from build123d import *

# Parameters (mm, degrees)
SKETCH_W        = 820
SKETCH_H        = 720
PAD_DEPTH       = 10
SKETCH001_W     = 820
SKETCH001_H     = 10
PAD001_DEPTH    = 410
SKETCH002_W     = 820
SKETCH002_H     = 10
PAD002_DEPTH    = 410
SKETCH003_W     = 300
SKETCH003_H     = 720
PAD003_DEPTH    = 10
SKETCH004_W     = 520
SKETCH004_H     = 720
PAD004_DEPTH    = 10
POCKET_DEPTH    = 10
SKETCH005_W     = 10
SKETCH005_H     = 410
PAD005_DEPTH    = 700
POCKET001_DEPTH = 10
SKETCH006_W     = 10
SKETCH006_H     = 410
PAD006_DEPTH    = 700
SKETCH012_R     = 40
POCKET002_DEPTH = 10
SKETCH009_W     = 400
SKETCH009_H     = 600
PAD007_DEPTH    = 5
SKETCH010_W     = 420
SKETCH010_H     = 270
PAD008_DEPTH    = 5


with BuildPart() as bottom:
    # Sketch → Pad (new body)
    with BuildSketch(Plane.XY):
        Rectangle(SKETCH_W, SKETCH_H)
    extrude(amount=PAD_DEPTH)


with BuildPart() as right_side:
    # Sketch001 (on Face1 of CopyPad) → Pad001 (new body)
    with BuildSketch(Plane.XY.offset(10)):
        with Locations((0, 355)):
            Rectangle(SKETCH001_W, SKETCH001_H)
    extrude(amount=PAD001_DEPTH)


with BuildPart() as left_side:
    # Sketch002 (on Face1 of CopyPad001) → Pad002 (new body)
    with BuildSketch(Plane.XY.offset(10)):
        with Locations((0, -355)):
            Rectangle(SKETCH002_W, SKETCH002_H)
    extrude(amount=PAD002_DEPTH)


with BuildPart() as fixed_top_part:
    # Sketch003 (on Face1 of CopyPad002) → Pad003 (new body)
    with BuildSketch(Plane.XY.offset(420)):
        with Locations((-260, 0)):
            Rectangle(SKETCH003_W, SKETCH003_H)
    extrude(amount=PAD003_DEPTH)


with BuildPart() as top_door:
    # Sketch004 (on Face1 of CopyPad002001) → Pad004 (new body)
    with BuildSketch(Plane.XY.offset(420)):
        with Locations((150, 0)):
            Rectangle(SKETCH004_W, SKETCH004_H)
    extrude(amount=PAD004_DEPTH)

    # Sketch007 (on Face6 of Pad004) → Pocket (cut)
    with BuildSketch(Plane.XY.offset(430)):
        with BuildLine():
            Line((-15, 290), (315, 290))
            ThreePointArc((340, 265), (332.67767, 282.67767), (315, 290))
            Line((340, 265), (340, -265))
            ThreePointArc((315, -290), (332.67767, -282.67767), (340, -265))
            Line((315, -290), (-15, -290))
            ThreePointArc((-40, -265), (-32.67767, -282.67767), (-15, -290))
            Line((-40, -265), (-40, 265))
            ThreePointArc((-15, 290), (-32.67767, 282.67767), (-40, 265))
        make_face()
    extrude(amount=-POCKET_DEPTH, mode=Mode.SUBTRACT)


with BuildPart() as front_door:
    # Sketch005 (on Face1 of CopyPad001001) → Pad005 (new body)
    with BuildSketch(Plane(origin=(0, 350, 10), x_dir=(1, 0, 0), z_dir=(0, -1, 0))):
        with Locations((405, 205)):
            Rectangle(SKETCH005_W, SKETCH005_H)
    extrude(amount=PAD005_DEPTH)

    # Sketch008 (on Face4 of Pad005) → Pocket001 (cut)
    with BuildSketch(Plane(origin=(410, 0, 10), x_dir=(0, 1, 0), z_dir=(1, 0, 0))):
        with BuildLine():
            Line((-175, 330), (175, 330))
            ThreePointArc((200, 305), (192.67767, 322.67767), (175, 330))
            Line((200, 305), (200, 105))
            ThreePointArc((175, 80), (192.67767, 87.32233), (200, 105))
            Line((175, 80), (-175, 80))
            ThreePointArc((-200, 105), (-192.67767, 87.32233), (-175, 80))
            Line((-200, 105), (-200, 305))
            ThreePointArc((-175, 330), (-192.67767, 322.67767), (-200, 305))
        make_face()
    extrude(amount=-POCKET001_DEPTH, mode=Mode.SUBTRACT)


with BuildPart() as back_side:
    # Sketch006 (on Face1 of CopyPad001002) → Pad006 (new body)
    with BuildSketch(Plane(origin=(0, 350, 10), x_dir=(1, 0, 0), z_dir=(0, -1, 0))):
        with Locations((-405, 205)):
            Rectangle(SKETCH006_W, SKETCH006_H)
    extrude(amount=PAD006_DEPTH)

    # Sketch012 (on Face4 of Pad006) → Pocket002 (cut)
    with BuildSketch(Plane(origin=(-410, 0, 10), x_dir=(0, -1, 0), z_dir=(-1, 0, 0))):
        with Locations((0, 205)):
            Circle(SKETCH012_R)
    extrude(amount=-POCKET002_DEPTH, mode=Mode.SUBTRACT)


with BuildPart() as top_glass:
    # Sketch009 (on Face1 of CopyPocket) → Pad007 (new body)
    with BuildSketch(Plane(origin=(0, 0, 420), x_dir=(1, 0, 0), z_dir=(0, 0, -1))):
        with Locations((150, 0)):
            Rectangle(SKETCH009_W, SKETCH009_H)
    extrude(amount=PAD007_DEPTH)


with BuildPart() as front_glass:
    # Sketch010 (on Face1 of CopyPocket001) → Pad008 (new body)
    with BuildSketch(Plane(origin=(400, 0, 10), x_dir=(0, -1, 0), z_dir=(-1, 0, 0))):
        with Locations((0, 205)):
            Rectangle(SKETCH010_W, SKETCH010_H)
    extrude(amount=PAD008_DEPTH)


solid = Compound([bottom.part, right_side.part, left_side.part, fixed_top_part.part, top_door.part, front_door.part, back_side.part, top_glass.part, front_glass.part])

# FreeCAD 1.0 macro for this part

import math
import FreeCAD as App
import Part
import Sketcher

V = App.Vector


def add_polygon(sketch, points):
    """Adds a closed chain of lines whose ends are joined by coincident constraints."""
    first, n = sketch.GeometryCount, len(points)
    for a, b in zip(points, points[1:] + points[:1]):
        sketch.addGeometry(Part.LineSegment(App.Vector(*a, 0), App.Vector(*b, 0)), False)
    for i in range(n):
        sketch.addConstraint(Sketcher.Constraint("Coincident", first + i, 2, first + (i + 1) % n, 1))

doc = App.newDocument("Part")
body = doc.addObject("PartDesign::Body", "Body")

sketch1 = doc.addObject("Sketcher::SketchObject", "Sketch")
body.addObject(sketch1)
sketch1.AttachmentSupport = (doc.XY_Plane, [""])
sketch1.MapMode = "FlatFace"
add_polygon(sketch1, [(-410, 360), (-410, -360), (410, -360), (410, 360)])
sketch1.addConstraint(Sketcher.Constraint("Vertical", 0))
sketch1.addConstraint(Sketcher.Constraint("Horizontal", 1))
sketch1.addConstraint(Sketcher.Constraint("Vertical", 2))
sketch1.addConstraint(Sketcher.Constraint("Horizontal", 3))
sketch1.addConstraint(Sketcher.Constraint("Symmetric", 0, 2, 2, 2, -1, 1))
sketch1.addConstraint(Sketcher.Constraint("DistanceX", 1, 1, 1, 2, 820.0))
sketch1.addConstraint(Sketcher.Constraint("DistanceY", 0, 2, 0, 1, 720.0))
pad1 = doc.addObject("PartDesign::Pad", "Pad")
body.addObject(pad1)
pad1.Profile = sketch1
pad1.Length = 10
body2 = doc.addObject("PartDesign::Body", "Body001")

sketch2 = doc.addObject("Sketcher::SketchObject", "Sketch001")
body2.addObject(sketch2)
sketch2.AttachmentSupport = (doc.getObject("XY_Plane001"), [""])
sketch2.MapMode = "FlatFace"
sketch2.AttachmentOffset = App.Placement(V(0, 0, 10), App.Rotation())
add_polygon(sketch2, [(-410, 360), (-410, 350), (410, 350), (410, 360)])
sketch2.addConstraint(Sketcher.Constraint("Vertical", 0))
sketch2.addConstraint(Sketcher.Constraint("Horizontal", 1))
sketch2.addConstraint(Sketcher.Constraint("Vertical", 2))
sketch2.addConstraint(Sketcher.Constraint("Horizontal", 3))
sketch2.addConstraint(Sketcher.Constraint("DistanceX", 1, 1, 1, 2, 820.0))
sketch2.addConstraint(Sketcher.Constraint("DistanceY", 0, 2, 0, 1, 10.0))
sketch2.addConstraint(Sketcher.Constraint("DistanceX", 0, 2, -1, 1, 410.0))
sketch2.addConstraint(Sketcher.Constraint("DistanceY", -1, 1, 0, 2, 350.0))
pad2 = doc.addObject("PartDesign::Pad", "Pad001")
body2.addObject(pad2)
pad2.Profile = sketch2
pad2.Length = 410
body3 = doc.addObject("PartDesign::Body", "Body002")

sketch3 = doc.addObject("Sketcher::SketchObject", "Sketch002")
body3.addObject(sketch3)
sketch3.AttachmentSupport = (doc.getObject("XY_Plane002"), [""])
sketch3.MapMode = "FlatFace"
sketch3.AttachmentOffset = App.Placement(V(0, 0, 10), App.Rotation())
add_polygon(sketch3, [(-410, -350), (-410, -360), (410, -360), (410, -350)])
sketch3.addConstraint(Sketcher.Constraint("Vertical", 0))
sketch3.addConstraint(Sketcher.Constraint("Horizontal", 1))
sketch3.addConstraint(Sketcher.Constraint("Vertical", 2))
sketch3.addConstraint(Sketcher.Constraint("Horizontal", 3))
sketch3.addConstraint(Sketcher.Constraint("DistanceX", 1, 1, 1, 2, 820.0))
sketch3.addConstraint(Sketcher.Constraint("DistanceY", 0, 2, 0, 1, 10.0))
sketch3.addConstraint(Sketcher.Constraint("DistanceX", 0, 2, -1, 1, 410.0))
sketch3.addConstraint(Sketcher.Constraint("DistanceY", 0, 2, -1, 1, 360.0))
pad3 = doc.addObject("PartDesign::Pad", "Pad002")
body3.addObject(pad3)
pad3.Profile = sketch3
pad3.Length = 410
body4 = doc.addObject("PartDesign::Body", "Body003")

sketch4 = doc.addObject("Sketcher::SketchObject", "Sketch003")
body4.addObject(sketch4)
sketch4.AttachmentSupport = (doc.getObject("XY_Plane003"), [""])
sketch4.MapMode = "FlatFace"
sketch4.AttachmentOffset = App.Placement(V(0, 0, 420), App.Rotation())
add_polygon(sketch4, [(-410, 360), (-410, -360), (-110, -360), (-110, 360)])
sketch4.addConstraint(Sketcher.Constraint("Vertical", 0))
sketch4.addConstraint(Sketcher.Constraint("Horizontal", 1))
sketch4.addConstraint(Sketcher.Constraint("Vertical", 2))
sketch4.addConstraint(Sketcher.Constraint("Horizontal", 3))
sketch4.addConstraint(Sketcher.Constraint("DistanceX", 1, 1, 1, 2, 300.0))
sketch4.addConstraint(Sketcher.Constraint("DistanceY", 0, 2, 0, 1, 720.0))
sketch4.addConstraint(Sketcher.Constraint("DistanceX", 0, 2, -1, 1, 410.0))
sketch4.addConstraint(Sketcher.Constraint("DistanceY", 0, 2, -1, 1, 360.0))
pad4 = doc.addObject("PartDesign::Pad", "Pad003")
body4.addObject(pad4)
pad4.Profile = sketch4
pad4.Length = 10
body5 = doc.addObject("PartDesign::Body", "Body004")

sketch5 = doc.addObject("Sketcher::SketchObject", "Sketch004")
body5.addObject(sketch5)
sketch5.AttachmentSupport = (doc.getObject("XY_Plane004"), [""])
sketch5.MapMode = "FlatFace"
sketch5.AttachmentOffset = App.Placement(V(0, 0, 420), App.Rotation())
add_polygon(sketch5, [(-110, 360), (-110, -360), (410, -360), (410, 360)])
sketch5.addConstraint(Sketcher.Constraint("Vertical", 0))
sketch5.addConstraint(Sketcher.Constraint("Horizontal", 1))
sketch5.addConstraint(Sketcher.Constraint("Vertical", 2))
sketch5.addConstraint(Sketcher.Constraint("Horizontal", 3))
sketch5.addConstraint(Sketcher.Constraint("DistanceX", 1, 1, 1, 2, 520.0))
sketch5.addConstraint(Sketcher.Constraint("DistanceY", 0, 2, 0, 1, 720.0))
sketch5.addConstraint(Sketcher.Constraint("DistanceX", 0, 2, -1, 1, 110.0))
sketch5.addConstraint(Sketcher.Constraint("DistanceY", 0, 2, -1, 1, 360.0))
pad5 = doc.addObject("PartDesign::Pad", "Pad004")
body5.addObject(pad5)
pad5.Profile = sketch5
pad5.Length = 10

sketch6 = doc.addObject("Sketcher::SketchObject", "Sketch005")
body5.addObject(sketch6)
sketch6.AttachmentSupport = (doc.getObject("XY_Plane004"), [""])
sketch6.MapMode = "FlatFace"
sketch6.AttachmentOffset = App.Placement(V(0, 0, 430), App.Rotation())
sketch6.addGeometry(Part.LineSegment(V(315, 290, 0), V(-15, 290, 0)), False)
sketch6.addGeometry(Part.ArcOfCircle(Part.Circle(V(-15, 265, 0), V(0, 0, 1), 25), math.radians(90), math.radians(180)), False)
sketch6.addGeometry(Part.LineSegment(V(-40, 265, 0), V(-40, -265, 0)), False)
sketch6.addGeometry(Part.ArcOfCircle(Part.Circle(V(-15, -265, 0), V(0, 0, 1), 25), math.radians(180), math.radians(270)), False)
sketch6.addGeometry(Part.LineSegment(V(-15, -290, 0), V(315, -290, 0)), False)
sketch6.addGeometry(Part.ArcOfCircle(Part.Circle(V(315, -265, 0), V(0, 0, 1), 25), math.radians(-90), math.radians(0)), False)
sketch6.addGeometry(Part.LineSegment(V(340, -265, 0), V(340, 265, 0)), False)
sketch6.addGeometry(Part.ArcOfCircle(Part.Circle(V(315, 265, 0), V(0, 0, 1), 25), math.radians(0), math.radians(90)), False)
sketch6.addConstraint(Sketcher.Constraint("Tangent", 0, 2, 1, 1))
sketch6.addConstraint(Sketcher.Constraint("Tangent", 1, 2, 2, 1))
sketch6.addConstraint(Sketcher.Constraint("Tangent", 2, 2, 3, 1))
sketch6.addConstraint(Sketcher.Constraint("Tangent", 3, 2, 4, 1))
sketch6.addConstraint(Sketcher.Constraint("Tangent", 4, 2, 5, 1))
sketch6.addConstraint(Sketcher.Constraint("Tangent", 5, 2, 6, 1))
sketch6.addConstraint(Sketcher.Constraint("Tangent", 6, 2, 7, 1))
sketch6.addConstraint(Sketcher.Constraint("Tangent", 7, 2, 0, 1))
sketch6.addConstraint(Sketcher.Constraint("Horizontal", 0))
sketch6.addConstraint(Sketcher.Constraint("Vertical", 2))
sketch6.addConstraint(Sketcher.Constraint("Horizontal", 4))
sketch6.addConstraint(Sketcher.Constraint("Vertical", 6))
sketch6.addConstraint(Sketcher.Constraint("Equal", 1, 3))
sketch6.addConstraint(Sketcher.Constraint("Equal", 3, 5))
sketch6.addConstraint(Sketcher.Constraint("Equal", 5, 7))
sketch6.addConstraint(Sketcher.Constraint("Radius", 1, 24.999998))
sketch6.addConstraint(Sketcher.Constraint("DistanceX", 0, 2, 0, 1, 330.0))
sketch6.addConstraint(Sketcher.Constraint("DistanceY", 2, 2, 2, 1, 530.0))
sketch6.addConstraint(Sketcher.Constraint("DistanceX", 1, 3, -1, 1, 15.000002))
sketch6.addConstraint(Sketcher.Constraint("DistanceY", -1, 1, 1, 3, 265.000002))
pocket1 = doc.addObject("PartDesign::Pocket", "Pocket")
body5.addObject(pocket1)
pocket1.Profile = sketch6
pocket1.Length = 10
body6 = doc.addObject("PartDesign::Body", "Body005")

sketch7 = doc.addObject("Sketcher::SketchObject", "Sketch006")
body6.addObject(sketch7)
sketch7.AttachmentSupport = (doc.getObject("XZ_Plane005"), [""])
sketch7.MapMode = "FlatFace"
sketch7.AttachmentOffset = App.Placement(V(0, 0, -350), App.Rotation())
add_polygon(sketch7, [(400, 420), (400, 10), (410, 10), (410, 420)])
sketch7.addConstraint(Sketcher.Constraint("Vertical", 0))
sketch7.addConstraint(Sketcher.Constraint("Horizontal", 1))
sketch7.addConstraint(Sketcher.Constraint("Vertical", 2))
sketch7.addConstraint(Sketcher.Constraint("Horizontal", 3))
sketch7.addConstraint(Sketcher.Constraint("DistanceX", 1, 1, 1, 2, 10.0))
sketch7.addConstraint(Sketcher.Constraint("DistanceY", 0, 2, 0, 1, 410.0))
sketch7.addConstraint(Sketcher.Constraint("DistanceX", -1, 1, 0, 2, 400.0))
sketch7.addConstraint(Sketcher.Constraint("DistanceY", -1, 1, 0, 2, 10.0))
pad6 = doc.addObject("PartDesign::Pad", "Pad005")
body6.addObject(pad6)
pad6.Profile = sketch7
pad6.Length = 700

sketch8 = doc.addObject("Sketcher::SketchObject", "Sketch007")
body6.addObject(sketch8)
sketch8.AttachmentSupport = (doc.getObject("YZ_Plane005"), [""])
sketch8.MapMode = "FlatFace"
sketch8.AttachmentOffset = App.Placement(V(0, 0, 410), App.Rotation())
sketch8.addGeometry(Part.LineSegment(V(175, 340, 0), V(-175, 340, 0)), False)
sketch8.addGeometry(Part.ArcOfCircle(Part.Circle(V(-175, 315, 0), V(0, 0, 1), 25), math.radians(90), math.radians(180)), False)
sketch8.addGeometry(Part.LineSegment(V(-200, 315, 0), V(-200, 115, 0)), False)
sketch8.addGeometry(Part.ArcOfCircle(Part.Circle(V(-175, 115, 0), V(0, 0, 1), 25), math.radians(180), math.radians(270)), False)
sketch8.addGeometry(Part.LineSegment(V(-175, 90, 0), V(175, 90, 0)), False)
sketch8.addGeometry(Part.ArcOfCircle(Part.Circle(V(175, 115, 0), V(0, 0, 1), 25), math.radians(-90), math.radians(0)), False)
sketch8.addGeometry(Part.LineSegment(V(200, 115, 0), V(200, 315, 0)), False)
sketch8.addGeometry(Part.ArcOfCircle(Part.Circle(V(175, 315, 0), V(0, 0, 1), 25), math.radians(0), math.radians(90)), False)
sketch8.addConstraint(Sketcher.Constraint("Tangent", 0, 2, 1, 1))
sketch8.addConstraint(Sketcher.Constraint("Tangent", 1, 2, 2, 1))
sketch8.addConstraint(Sketcher.Constraint("Tangent", 2, 2, 3, 1))
sketch8.addConstraint(Sketcher.Constraint("Tangent", 3, 2, 4, 1))
sketch8.addConstraint(Sketcher.Constraint("Tangent", 4, 2, 5, 1))
sketch8.addConstraint(Sketcher.Constraint("Tangent", 5, 2, 6, 1))
sketch8.addConstraint(Sketcher.Constraint("Tangent", 6, 2, 7, 1))
sketch8.addConstraint(Sketcher.Constraint("Tangent", 7, 2, 0, 1))
sketch8.addConstraint(Sketcher.Constraint("Horizontal", 0))
sketch8.addConstraint(Sketcher.Constraint("Vertical", 2))
sketch8.addConstraint(Sketcher.Constraint("Horizontal", 4))
sketch8.addConstraint(Sketcher.Constraint("Vertical", 6))
sketch8.addConstraint(Sketcher.Constraint("Equal", 1, 3))
sketch8.addConstraint(Sketcher.Constraint("Equal", 3, 5))
sketch8.addConstraint(Sketcher.Constraint("Equal", 5, 7))
sketch8.addConstraint(Sketcher.Constraint("Radius", 1, 24.999998))
sketch8.addConstraint(Sketcher.Constraint("DistanceX", 0, 2, 0, 1, 350.0))
sketch8.addConstraint(Sketcher.Constraint("DistanceY", 2, 2, 2, 1, 200.0))
sketch8.addConstraint(Sketcher.Constraint("DistanceX", 1, 3, -1, 1, 175.000002))
sketch8.addConstraint(Sketcher.Constraint("DistanceY", -1, 1, 1, 3, 315.000002))
pocket2 = doc.addObject("PartDesign::Pocket", "Pocket001")
body6.addObject(pocket2)
pocket2.Profile = sketch8
pocket2.Length = 10
body7 = doc.addObject("PartDesign::Body", "Body006")

sketch9 = doc.addObject("Sketcher::SketchObject", "Sketch008")
body7.addObject(sketch9)
sketch9.AttachmentSupport = (doc.getObject("XZ_Plane006"), [""])
sketch9.MapMode = "FlatFace"
sketch9.AttachmentOffset = App.Placement(V(0, 0, -350), App.Rotation())
add_polygon(sketch9, [(-410, 420), (-410, 10), (-400, 10), (-400, 420)])
sketch9.addConstraint(Sketcher.Constraint("Vertical", 0))
sketch9.addConstraint(Sketcher.Constraint("Horizontal", 1))
sketch9.addConstraint(Sketcher.Constraint("Vertical", 2))
sketch9.addConstraint(Sketcher.Constraint("Horizontal", 3))
sketch9.addConstraint(Sketcher.Constraint("DistanceX", 1, 1, 1, 2, 10.0))
sketch9.addConstraint(Sketcher.Constraint("DistanceY", 0, 2, 0, 1, 410.0))
sketch9.addConstraint(Sketcher.Constraint("DistanceX", 0, 2, -1, 1, 410.0))
sketch9.addConstraint(Sketcher.Constraint("DistanceY", -1, 1, 0, 2, 10.0))
pad7 = doc.addObject("PartDesign::Pad", "Pad006")
body7.addObject(pad7)
pad7.Profile = sketch9
pad7.Length = 700

sketch10 = doc.addObject("Sketcher::SketchObject", "Sketch009")
body7.addObject(sketch10)
sketch10.AttachmentSupport = (doc.getObject("YZ_Plane006"), [""])
sketch10.MapMode = "FlatFace"
sketch10.AttachmentOffset = App.Placement(V(0, 0, -410), App.Rotation())
sketch10.addGeometry(Part.Circle(V(0, 215, 0), V(0, 0, 1), 40), False)
sketch10.addConstraint(Sketcher.Constraint("PointOnObject", 0, 3, -2))
sketch10.addConstraint(Sketcher.Constraint("Diameter", 0, 80.0))
sketch10.addConstraint(Sketcher.Constraint("DistanceY", -1, 1, 0, 3, 215.0))
pocket3 = doc.addObject("PartDesign::Pocket", "Pocket002")
body7.addObject(pocket3)
pocket3.Profile = sketch10
pocket3.Length = 10
pocket3.Reversed = True
body8 = doc.addObject("PartDesign::Body", "Body007")

sketch11 = doc.addObject("Sketcher::SketchObject", "Sketch010")
body8.addObject(sketch11)
sketch11.AttachmentSupport = (doc.getObject("XY_Plane007"), [""])
sketch11.MapMode = "FlatFace"
sketch11.AttachmentOffset = App.Placement(V(0, 0, 420), App.Rotation())
add_polygon(sketch11, [(-50, -300), (-50, 300), (350, 300), (350, -300)])
sketch11.addConstraint(Sketcher.Constraint("Vertical", 0))
sketch11.addConstraint(Sketcher.Constraint("Horizontal", 1))
sketch11.addConstraint(Sketcher.Constraint("Vertical", 2))
sketch11.addConstraint(Sketcher.Constraint("Horizontal", 3))
sketch11.addConstraint(Sketcher.Constraint("DistanceX", 1, 1, 1, 2, 400.0))
sketch11.addConstraint(Sketcher.Constraint("DistanceY", 0, 1, 0, 2, 600.0))
sketch11.addConstraint(Sketcher.Constraint("DistanceX", 0, 2, -1, 1, 50.0))
sketch11.addConstraint(Sketcher.Constraint("DistanceY", -1, 1, 0, 2, 300.0))
pad8 = doc.addObject("PartDesign::Pad", "Pad007")
body8.addObject(pad8)
pad8.Profile = sketch11
pad8.Length = 5
pad8.Reversed = True
body9 = doc.addObject("PartDesign::Body", "Body008")

sketch12 = doc.addObject("Sketcher::SketchObject", "Sketch011")
body9.addObject(sketch12)
sketch12.AttachmentSupport = (doc.getObject("YZ_Plane008"), [""])
sketch12.MapMode = "FlatFace"
sketch12.AttachmentOffset = App.Placement(V(0, 0, 400), App.Rotation())
add_polygon(sketch12, [(210, 350), (210, 80), (-210, 80), (-210, 350)])
sketch12.addConstraint(Sketcher.Constraint("Vertical", 0))
sketch12.addConstraint(Sketcher.Constraint("Horizontal", 1))
sketch12.addConstraint(Sketcher.Constraint("Vertical", 2))
sketch12.addConstraint(Sketcher.Constraint("Horizontal", 3))
sketch12.addConstraint(Sketcher.Constraint("DistanceX", 1, 2, 1, 1, 420.0))
sketch12.addConstraint(Sketcher.Constraint("DistanceY", 0, 2, 0, 1, 270.0))
sketch12.addConstraint(Sketcher.Constraint("DistanceX", -1, 1, 0, 2, 210.0))
sketch12.addConstraint(Sketcher.Constraint("DistanceY", -1, 1, 0, 2, 80.0))
pad9 = doc.addObject("PartDesign::Pad", "Pad008")
body9.addObject(pad9)
pad9.Profile = sketch12
pad9.Length = 5
pad9.Reversed = True

doc.recompute()
